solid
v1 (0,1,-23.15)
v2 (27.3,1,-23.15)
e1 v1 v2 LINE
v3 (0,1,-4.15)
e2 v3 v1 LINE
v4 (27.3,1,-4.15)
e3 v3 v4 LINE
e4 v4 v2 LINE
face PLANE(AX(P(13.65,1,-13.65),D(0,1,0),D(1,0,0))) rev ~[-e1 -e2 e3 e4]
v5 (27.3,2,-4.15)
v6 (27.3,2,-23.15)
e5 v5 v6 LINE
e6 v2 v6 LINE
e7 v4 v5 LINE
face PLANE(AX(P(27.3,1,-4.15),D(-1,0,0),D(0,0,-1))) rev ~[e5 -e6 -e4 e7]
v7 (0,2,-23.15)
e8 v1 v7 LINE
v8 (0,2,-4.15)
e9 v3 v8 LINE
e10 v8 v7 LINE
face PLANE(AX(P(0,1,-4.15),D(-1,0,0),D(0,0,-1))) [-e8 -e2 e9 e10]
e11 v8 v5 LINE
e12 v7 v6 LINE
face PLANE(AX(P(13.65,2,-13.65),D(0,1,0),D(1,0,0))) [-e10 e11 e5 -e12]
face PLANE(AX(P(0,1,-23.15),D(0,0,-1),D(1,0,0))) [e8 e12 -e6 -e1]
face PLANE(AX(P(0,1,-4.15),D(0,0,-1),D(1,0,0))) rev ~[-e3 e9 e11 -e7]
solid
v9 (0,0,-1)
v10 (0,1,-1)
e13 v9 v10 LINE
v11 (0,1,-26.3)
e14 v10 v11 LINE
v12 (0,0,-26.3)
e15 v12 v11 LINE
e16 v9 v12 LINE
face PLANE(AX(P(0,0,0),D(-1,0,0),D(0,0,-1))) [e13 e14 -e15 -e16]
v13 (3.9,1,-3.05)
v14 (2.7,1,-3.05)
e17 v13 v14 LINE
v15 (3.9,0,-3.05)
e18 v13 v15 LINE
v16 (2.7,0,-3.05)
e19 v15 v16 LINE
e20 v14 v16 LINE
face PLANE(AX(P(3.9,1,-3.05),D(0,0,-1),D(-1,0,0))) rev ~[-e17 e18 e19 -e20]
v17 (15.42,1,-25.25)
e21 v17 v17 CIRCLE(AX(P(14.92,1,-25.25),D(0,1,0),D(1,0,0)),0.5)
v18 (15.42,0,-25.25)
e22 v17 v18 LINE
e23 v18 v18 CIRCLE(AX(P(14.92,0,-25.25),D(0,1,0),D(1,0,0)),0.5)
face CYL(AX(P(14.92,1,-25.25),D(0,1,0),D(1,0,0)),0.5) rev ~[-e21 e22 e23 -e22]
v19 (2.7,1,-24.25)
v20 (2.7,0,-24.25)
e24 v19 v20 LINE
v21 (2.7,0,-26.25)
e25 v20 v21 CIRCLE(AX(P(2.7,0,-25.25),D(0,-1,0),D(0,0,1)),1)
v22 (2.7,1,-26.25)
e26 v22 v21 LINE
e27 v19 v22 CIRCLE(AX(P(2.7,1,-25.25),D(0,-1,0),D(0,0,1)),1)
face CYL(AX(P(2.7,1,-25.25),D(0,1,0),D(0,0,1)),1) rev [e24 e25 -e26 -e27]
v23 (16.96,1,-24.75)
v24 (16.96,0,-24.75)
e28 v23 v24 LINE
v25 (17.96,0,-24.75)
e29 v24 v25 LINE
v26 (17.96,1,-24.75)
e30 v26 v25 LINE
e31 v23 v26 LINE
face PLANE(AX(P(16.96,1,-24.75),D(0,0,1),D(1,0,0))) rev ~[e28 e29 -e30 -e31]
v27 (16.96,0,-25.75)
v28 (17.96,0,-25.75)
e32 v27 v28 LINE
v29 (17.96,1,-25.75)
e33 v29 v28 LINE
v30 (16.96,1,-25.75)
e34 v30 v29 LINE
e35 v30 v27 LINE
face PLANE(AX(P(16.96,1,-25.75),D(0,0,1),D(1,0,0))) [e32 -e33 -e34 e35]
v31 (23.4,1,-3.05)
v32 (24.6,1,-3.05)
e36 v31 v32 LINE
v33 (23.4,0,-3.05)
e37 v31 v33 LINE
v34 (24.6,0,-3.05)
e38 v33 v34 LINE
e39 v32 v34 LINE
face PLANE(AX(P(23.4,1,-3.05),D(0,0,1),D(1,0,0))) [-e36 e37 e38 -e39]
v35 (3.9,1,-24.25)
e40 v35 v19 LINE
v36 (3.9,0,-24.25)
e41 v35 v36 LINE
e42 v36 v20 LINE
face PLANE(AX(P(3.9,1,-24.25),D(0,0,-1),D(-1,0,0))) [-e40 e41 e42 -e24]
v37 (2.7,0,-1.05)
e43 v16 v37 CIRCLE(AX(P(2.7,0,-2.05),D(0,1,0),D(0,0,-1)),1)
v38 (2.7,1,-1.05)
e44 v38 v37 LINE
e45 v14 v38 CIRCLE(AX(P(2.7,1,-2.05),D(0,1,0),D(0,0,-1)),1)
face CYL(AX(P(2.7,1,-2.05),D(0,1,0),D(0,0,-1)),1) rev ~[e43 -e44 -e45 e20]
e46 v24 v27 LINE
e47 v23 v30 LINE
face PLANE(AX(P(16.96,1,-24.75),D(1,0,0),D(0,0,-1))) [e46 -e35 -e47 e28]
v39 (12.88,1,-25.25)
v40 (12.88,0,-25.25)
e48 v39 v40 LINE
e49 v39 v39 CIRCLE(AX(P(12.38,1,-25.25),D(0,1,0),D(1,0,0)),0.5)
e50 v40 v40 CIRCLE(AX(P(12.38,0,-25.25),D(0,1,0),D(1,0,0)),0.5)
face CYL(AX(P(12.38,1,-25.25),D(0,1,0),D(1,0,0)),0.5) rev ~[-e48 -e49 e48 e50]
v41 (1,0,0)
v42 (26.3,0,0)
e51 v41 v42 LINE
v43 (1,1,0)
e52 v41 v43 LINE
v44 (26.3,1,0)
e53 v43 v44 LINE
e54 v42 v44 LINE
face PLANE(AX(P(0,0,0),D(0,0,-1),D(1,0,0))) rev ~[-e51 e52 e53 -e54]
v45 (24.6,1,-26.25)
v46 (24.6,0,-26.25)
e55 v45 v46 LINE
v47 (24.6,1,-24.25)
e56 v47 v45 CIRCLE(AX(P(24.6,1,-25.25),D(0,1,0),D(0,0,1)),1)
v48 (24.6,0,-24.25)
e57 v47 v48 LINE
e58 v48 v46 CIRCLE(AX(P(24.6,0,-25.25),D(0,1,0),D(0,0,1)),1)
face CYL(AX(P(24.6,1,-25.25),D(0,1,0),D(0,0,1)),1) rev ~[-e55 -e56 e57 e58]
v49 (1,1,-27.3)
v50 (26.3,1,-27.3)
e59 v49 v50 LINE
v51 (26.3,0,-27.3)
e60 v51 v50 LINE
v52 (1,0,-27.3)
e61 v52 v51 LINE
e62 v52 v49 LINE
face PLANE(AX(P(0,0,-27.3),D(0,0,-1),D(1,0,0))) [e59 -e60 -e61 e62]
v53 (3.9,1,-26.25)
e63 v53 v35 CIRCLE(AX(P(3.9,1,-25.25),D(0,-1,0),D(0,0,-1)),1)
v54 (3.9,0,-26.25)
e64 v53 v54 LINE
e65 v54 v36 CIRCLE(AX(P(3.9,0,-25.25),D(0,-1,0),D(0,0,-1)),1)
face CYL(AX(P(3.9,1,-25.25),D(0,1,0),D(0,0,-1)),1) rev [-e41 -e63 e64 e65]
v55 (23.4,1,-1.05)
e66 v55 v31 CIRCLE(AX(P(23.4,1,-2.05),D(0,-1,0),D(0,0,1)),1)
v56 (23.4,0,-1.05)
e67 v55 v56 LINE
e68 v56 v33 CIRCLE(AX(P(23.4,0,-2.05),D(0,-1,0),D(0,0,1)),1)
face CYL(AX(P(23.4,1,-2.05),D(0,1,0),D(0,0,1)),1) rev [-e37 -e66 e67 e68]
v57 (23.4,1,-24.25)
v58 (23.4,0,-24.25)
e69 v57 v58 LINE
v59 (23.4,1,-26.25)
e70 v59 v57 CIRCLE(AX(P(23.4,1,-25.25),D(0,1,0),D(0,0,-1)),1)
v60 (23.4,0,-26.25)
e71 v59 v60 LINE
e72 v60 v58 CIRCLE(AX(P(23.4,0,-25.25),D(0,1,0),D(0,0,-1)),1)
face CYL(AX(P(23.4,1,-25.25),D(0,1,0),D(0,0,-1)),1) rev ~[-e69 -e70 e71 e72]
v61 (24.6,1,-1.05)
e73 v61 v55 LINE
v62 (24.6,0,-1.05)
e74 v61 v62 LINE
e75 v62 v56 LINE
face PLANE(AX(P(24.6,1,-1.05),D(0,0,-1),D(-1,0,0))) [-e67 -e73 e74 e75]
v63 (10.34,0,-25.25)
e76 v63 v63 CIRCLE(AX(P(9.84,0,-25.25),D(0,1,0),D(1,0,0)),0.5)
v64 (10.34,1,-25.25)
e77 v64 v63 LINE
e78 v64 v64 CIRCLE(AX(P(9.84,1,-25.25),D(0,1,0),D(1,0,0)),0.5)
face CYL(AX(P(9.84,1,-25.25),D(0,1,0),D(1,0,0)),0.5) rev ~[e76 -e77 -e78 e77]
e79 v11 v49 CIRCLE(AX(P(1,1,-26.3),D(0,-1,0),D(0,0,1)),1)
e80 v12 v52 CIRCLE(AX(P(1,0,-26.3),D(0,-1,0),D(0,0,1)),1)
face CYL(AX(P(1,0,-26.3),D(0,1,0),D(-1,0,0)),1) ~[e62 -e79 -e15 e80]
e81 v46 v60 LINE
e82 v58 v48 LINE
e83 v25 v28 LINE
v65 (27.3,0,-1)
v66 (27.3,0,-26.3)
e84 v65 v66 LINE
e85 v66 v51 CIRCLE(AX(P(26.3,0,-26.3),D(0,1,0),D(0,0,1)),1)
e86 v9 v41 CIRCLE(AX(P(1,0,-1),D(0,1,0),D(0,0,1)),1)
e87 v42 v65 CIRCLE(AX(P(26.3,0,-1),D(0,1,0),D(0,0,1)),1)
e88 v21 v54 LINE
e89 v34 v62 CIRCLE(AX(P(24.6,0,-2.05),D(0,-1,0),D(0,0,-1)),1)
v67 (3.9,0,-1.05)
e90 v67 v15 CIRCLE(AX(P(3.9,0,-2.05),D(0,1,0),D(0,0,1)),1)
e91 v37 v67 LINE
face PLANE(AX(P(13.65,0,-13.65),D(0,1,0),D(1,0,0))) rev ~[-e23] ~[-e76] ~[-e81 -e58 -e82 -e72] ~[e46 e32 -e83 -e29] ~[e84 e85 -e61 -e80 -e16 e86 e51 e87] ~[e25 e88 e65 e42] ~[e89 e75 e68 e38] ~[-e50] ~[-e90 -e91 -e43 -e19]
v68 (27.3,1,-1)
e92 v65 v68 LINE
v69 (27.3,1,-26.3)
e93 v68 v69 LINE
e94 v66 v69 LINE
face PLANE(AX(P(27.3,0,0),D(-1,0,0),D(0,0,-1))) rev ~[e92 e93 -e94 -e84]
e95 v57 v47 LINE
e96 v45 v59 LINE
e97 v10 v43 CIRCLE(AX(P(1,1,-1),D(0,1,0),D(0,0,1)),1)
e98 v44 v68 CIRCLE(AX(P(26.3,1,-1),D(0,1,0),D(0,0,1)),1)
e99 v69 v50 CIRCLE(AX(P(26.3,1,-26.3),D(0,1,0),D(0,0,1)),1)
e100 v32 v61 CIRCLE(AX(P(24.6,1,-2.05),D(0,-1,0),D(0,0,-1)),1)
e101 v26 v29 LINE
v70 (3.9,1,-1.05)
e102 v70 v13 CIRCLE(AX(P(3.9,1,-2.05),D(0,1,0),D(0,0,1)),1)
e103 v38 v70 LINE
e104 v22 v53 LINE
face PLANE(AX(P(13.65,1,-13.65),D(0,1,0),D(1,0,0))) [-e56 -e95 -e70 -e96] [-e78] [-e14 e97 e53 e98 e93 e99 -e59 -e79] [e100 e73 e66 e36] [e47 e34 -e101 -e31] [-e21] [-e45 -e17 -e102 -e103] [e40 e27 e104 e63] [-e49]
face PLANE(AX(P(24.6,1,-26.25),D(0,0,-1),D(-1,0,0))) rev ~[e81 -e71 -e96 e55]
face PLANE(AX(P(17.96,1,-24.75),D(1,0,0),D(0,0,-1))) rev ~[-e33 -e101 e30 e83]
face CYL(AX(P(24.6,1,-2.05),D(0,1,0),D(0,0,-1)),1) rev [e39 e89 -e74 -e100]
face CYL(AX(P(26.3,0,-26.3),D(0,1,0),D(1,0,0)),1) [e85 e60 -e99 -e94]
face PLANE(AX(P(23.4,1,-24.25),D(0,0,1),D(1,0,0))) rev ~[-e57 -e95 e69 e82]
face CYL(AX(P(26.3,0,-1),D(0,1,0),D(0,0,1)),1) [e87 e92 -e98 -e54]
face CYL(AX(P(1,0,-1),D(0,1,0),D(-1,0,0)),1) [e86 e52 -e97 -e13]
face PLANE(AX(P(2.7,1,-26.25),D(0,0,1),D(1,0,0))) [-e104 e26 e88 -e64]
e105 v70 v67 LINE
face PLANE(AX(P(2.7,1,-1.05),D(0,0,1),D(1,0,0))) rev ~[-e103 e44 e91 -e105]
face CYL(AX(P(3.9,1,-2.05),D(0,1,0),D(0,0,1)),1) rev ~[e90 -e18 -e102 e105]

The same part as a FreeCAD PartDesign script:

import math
import FreeCAD as App
import Part
import Sketcher

V = App.Vector
Q = App.Units.Quantity


def edges_at(feature, points):
    """Names of the edges that pass closest to the given points."""
    edges = feature.Shape.Edges
    near = lambda p: min(range(len(edges)), key=lambda i: edges[i].distToShape(Part.Vertex(*p))[0])
    return sorted({f"Edge{near(p) + 1}" for p in points})


def add_polygon(sketch, points):
    """Adds a closed chain of lines whose ends are joined by coincident constraints."""
    first, n = sketch.GeometryCount, len(points)
    for a, b in zip(points, points[1:] + points[:1]):
        sketch.addGeometry(Part.LineSegment(App.Vector(*a, 0), App.Vector(*b, 0)), False)
    for i in range(n):
        sketch.addConstraint(Sketcher.Constraint("Coincident", first + i, 2, first + (i + 1) % n, 1))

doc = App.newDocument("Part")
body = doc.addObject("PartDesign::Body", "Body")

# Sketch on XZ plane
sketch1 = doc.addObject("Sketcher::SketchObject", "Sketch")
body.addObject(sketch1)
sketch1.AttachmentSupport = (doc.XZ_Plane, [""])
sketch1.MapMode = "FlatFace"
add_polygon(sketch1, [(0, -27), (0, 0), (27, 0), (27, -27)])  # lines 0-3
sketch1.addConstraint(Sketcher.Constraint("Vertical", 0))
sketch1.addConstraint(Sketcher.Constraint("Horizontal", 1))
sketch1.addConstraint(Sketcher.Constraint("Vertical", 2))
sketch1.addConstraint(Sketcher.Constraint("Horizontal", 3))
sketch1.addConstraint(Sketcher.Constraint("Coincident", 0, 2, -1, 1))
sketch1.addConstraint(Sketcher.Constraint("Equal", 3, 0))
sketch1.addConstraint(Sketcher.Constraint("DistanceX", 1, 1, 1, 2, Q("27.3 mm")))
pad1 = doc.addObject("PartDesign::Pad", "Pad")
body.addObject(pad1)
pad1.Profile = sketch1
pad1.Length = 1
pad1.Reversed = True
doc.recompute()

fillet = doc.addObject("PartDesign::Fillet", "Fillet")
body.addObject(fillet)
fillet.Base = (pad1, edges_at(pad1, [
    (0, 0.5, -27.3),
    (27.3, 0.5, -27.3),
    (27.3, 0.5, 0),
    (0, 0.5, 0),
]))
fillet.Radius = 1

# Sketch on XZ plane
sketch2 = doc.addObject("Sketcher::SketchObject", "Sketch001")
body.addObject(sketch2)
sketch2.AttachmentSupport = (doc.XZ_Plane, [""])
sketch2.MapMode = "FlatFace"
sketch2.AttachmentOffset = App.Placement(V(0, 0, -1), App.Rotation())
sketch2.addGeometry(Part.Circle(V(9.8, -25.2, 0), V(0, 0, 1), 0.5), False)  # 0
sketch2.addGeometry(Part.Circle(V(12.4, -25.2, 0), V(0, 0, 1), 0.5), False)  # 1
sketch2.addGeometry(Part.Circle(V(14.9, -25.2, 0), V(0, 0, 1), 0.5), False)  # 2
sketch2.addGeometry(Part.LineSegment(V(3.9, -26.2, 0), V(2.7, -26.2, 0)), False)  # 3
sketch2.addGeometry(Part.ArcOfCircle(Part.Circle(V(2.7, -25.2, 0), V(0, 0, 1), 1), math.radians(90), math.radians(270)), False)  # 4
sketch2.addGeometry(Part.LineSegment(V(2.7, -24.2, 0), V(3.9, -24.2, 0)), False)  # 5
sketch2.addGeometry(Part.ArcOfCircle(Part.Circle(V(3.9, -25.2, 0), V(0, 0, 1), 1), math.radians(-90), math.radians(90)), False)  # 6
sketch2.addGeometry(Part.LineSegment(V(24.6, -26.2, 0), V(23.4, -26.2, 0)), False)  # 7
sketch2.addGeometry(Part.ArcOfCircle(Part.Circle(V(23.4, -25.2, 0), V(0, 0, 1), 1), math.radians(90), math.radians(270)), False)  # 8
sketch2.addGeometry(Part.LineSegment(V(23.4, -24.2, 0), V(24.6, -24.2, 0)), False)  # 9
sketch2.addGeometry(Part.ArcOfCircle(Part.Circle(V(24.6, -25.2, 0), V(0, 0, 1), 1), math.radians(-90), math.radians(90)), False)  # 10
sketch2.addGeometry(Part.LineSegment(V(2.7, -1.1, 0), V(3.9, -1.1, 0)), False)  # 11
sketch2.addGeometry(Part.ArcOfCircle(Part.Circle(V(3.9, -2, 0), V(0, 0, 1), 1), math.radians(-90), math.radians(90)), False)  # 12
sketch2.addGeometry(Part.LineSegment(V(3.9, -3, 0), V(2.7, -3, 0)), False)  # 13
sketch2.addGeometry(Part.ArcOfCircle(Part.Circle(V(2.7, -2, 0), V(0, 0, 1), 1), math.radians(90), math.radians(270)), False)  # 14
sketch2.addGeometry(Part.LineSegment(V(23.4, -1.1, 0), V(24.6, -1.1, 0)), False)  # 15
sketch2.addGeometry(Part.ArcOfCircle(Part.Circle(V(24.6, -2, 0), V(0, 0, 1), 1), math.radians(-90), math.radians(90)), False)  # 16
sketch2.addGeometry(Part.LineSegment(V(24.6, -3, 0), V(23.4, -3, 0)), False)  # 17
sketch2.addGeometry(Part.ArcOfCircle(Part.Circle(V(23.4, -2, 0), V(0, 0, 1), 1), math.radians(90), math.radians(270)), False)  # 18
add_polygon(sketch2, [(17, -25.8), (17, -24.8), (18, -24.8), (18, -25.8)])  # lines 19-22
sketch2.addConstraint(Sketcher.Constraint("Tangent", 3, 2, 4, 2))
sketch2.addConstraint(Sketcher.Constraint("Tangent", 4, 1, 5, 1))
sketch2.addConstraint(Sketcher.Constraint("Tangent", 5, 2, 6, 2))
sketch2.addConstraint(Sketcher.Constraint("Tangent", 6, 1, 3, 1))
sketch2.addConstraint(Sketcher.Constraint("Tangent", 7, 2, 8, 2))
sketch2.addConstraint(Sketcher.Constraint("Tangent", 8, 1, 9, 1))
sketch2.addConstraint(Sketcher.Constraint("Tangent", 9, 2, 10, 2))
sketch2.addConstraint(Sketcher.Constraint("Tangent", 10, 1, 7, 1))
sketch2.addConstraint(Sketcher.Constraint("Tangent", 11, 2, 12, 2))
sketch2.addConstraint(Sketcher.Constraint("Tangent", 12, 1, 13, 1))
sketch2.addConstraint(Sketcher.Constraint("Tangent", 13, 2, 14, 2))
sketch2.addConstraint(Sketcher.Constraint("Tangent", 14, 1, 11, 1))
sketch2.addConstraint(Sketcher.Constraint("Tangent", 15, 2, 16, 2))
sketch2.addConstraint(Sketcher.Constraint("Tangent", 16, 1, 17, 1))
sketch2.addConstraint(Sketcher.Constraint("Tangent", 17, 2, 18, 2))
sketch2.addConstraint(Sketcher.Constraint("Tangent", 18, 1, 15, 1))
sketch2.addConstraint(Sketcher.Constraint("Horizontal", 3))
sketch2.addConstraint(Sketcher.Constraint("Horizontal", 5))
sketch2.addConstraint(Sketcher.Constraint("Horizontal", 7))
sketch2.addConstraint(Sketcher.Constraint("Horizontal", 9))
sketch2.addConstraint(Sketcher.Constraint("Horizontal", 11))
sketch2.addConstraint(Sketcher.Constraint("Horizontal", 13))
sketch2.addConstraint(Sketcher.Constraint("Horizontal", 15))
sketch2.addConstraint(Sketcher.Constraint("Horizontal", 17))
sketch2.addConstraint(Sketcher.Constraint("Vertical", 19))
sketch2.addConstraint(Sketcher.Constraint("Horizontal", 20))
sketch2.addConstraint(Sketcher.Constraint("Vertical", 21))
sketch2.addConstraint(Sketcher.Constraint("Horizontal", 22))
sketch2.addConstraint(Sketcher.Constraint("Equal", 0, 1))
sketch2.addConstraint(Sketcher.Constraint("Equal", 1, 2))
sketch2.addConstraint(Sketcher.Constraint("Equal", 6, 8))
sketch2.addConstraint(Sketcher.Constraint("Equal", 10, 12))
sketch2.addConstraint(Sketcher.Constraint("Equal", 14, 16))
sketch2.addConstraint(Sketcher.Constraint("Horizontal", 0, 3, 1, 3))
sketch2.addConstraint(Sketcher.Constraint("Horizontal", 1, 3, 2, 3))
sketch2.addConstraint(Sketcher.Constraint("Horizontal", 2, 3, 4, 3))
sketch2.addConstraint(Sketcher.Constraint("Horizontal", 6, 3, 8, 3))
sketch2.addConstraint(Sketcher.Constraint("Horizontal", 14, 3, 16, 3))
sketch2.addConstraint(Sketcher.Constraint("Vertical", 6, 3, 12, 3))
sketch2.addConstraint(Sketcher.Constraint("Vertical", 4, 3, 14, 3))
sketch2.addConstraint(Sketcher.Constraint("Vertical", 10, 3, 16, 3))
sketch2.addConstraint(Sketcher.Constraint("Vertical", 8, 3, 18, 3))
sketch2.addConstraint(Sketcher.Constraint("Equal", 5, 7))
sketch2.addConstraint(Sketcher.Constraint("Equal", 22, 19))
sketch2.addConstraint(Sketcher.Constraint("Diameter", 0, Q("1 mm")))
sketch2.addConstraint(Sketcher.Constraint("Radius", 4, Q("1 mm")))
sketch2.addConstraint(Sketcher.Constraint("DistanceX", 20, 1, 20, 2, Q("1 mm")))
sketch2.addConstraint(Sketcher.Constraint("DistanceX", 3, 2, 3, 1, Q("1.2 mm")))
sketch2.addConstraint(Sketcher.Constraint("DistanceX", -1, 1, 4, 3, Q("2.7 mm")))
sketch2.addConstraint(Sketcher.Constraint("DistanceX", -1, 1, 8, 3, Q("23.4 mm")))
sketch2.addConstraint(Sketcher.Constraint("DistanceY", 6, 3, 12, 3, Q("23.2 mm")))
sketch2.addConstraint(Sketcher.Constraint("DistanceY", 2, 3, 19, 2, Q("0.5 mm")))
sketch2.addConstraint(Sketcher.Constraint("DistanceX", -1, 1, 0, 3, Q("9.84 mm")))
sketch2.addConstraint(Sketcher.Constraint("DistanceY", 0, 3, -1, 1, Q("25.25 mm")))
sketch2.addConstraint(Sketcher.Constraint("DistanceX", -1, 1, 1, 3, Q("12.38 mm")))
sketch2.addConstraint(Sketcher.Constraint("DistanceX", -1, 1, 2, 3, Q("14.92 mm")))
sketch2.addConstraint(Sketcher.Constraint("DistanceX", -1, 1, 19, 2, Q("16.96 mm")))
pocket1 = doc.addObject("PartDesign::Pocket", "Pocket")
body.addObject(pocket1)
pocket1.Profile = sketch2
pocket1.Length = 1
pocket1.Reversed = True
body2 = doc.addObject("PartDesign::Body", "Body001")

# Sketch on XZ plane
sketch3 = doc.addObject("Sketcher::SketchObject", "Sketch002")
body2.addObject(sketch3)
sketch3.AttachmentSupport = (doc.getObject("XZ_Plane001"), [""])
sketch3.MapMode = "FlatFace"
sketch3.AttachmentOffset = App.Placement(V(0, 0, -1), App.Rotation())
add_polygon(sketch3, [(0, -23), (0, -4), (27, -4), (27, -23)])  # lines 0-3
sketch3.addConstraint(Sketcher.Constraint("Vertical", 0))
sketch3.addConstraint(Sketcher.Constraint("Horizontal", 1))
sketch3.addConstraint(Sketcher.Constraint("Vertical", 2))
sketch3.addConstraint(Sketcher.Constraint("Horizontal", 3))
sketch3.addConstraint(Sketcher.Constraint("PointOnObject", 0, 2, -2))
sketch3.addConstraint(Sketcher.Constraint("DistanceY", 0, 1, 0, 2, Q("19 mm")))
sketch3.addConstraint(Sketcher.Constraint("DistanceX", 1, 1, 1, 2, Q("27.3 mm")))
sketch3.addConstraint(Sketcher.Constraint("DistanceY", 0, 2, -1, 1, Q("4.15 mm")))
pad2 = doc.addObject("PartDesign::Pad", "Pad001")
body2.addObject(pad2)
pad2.Profile = sketch3
pad2.Length = 1
pad2.Reversed = True

doc.recompute()
